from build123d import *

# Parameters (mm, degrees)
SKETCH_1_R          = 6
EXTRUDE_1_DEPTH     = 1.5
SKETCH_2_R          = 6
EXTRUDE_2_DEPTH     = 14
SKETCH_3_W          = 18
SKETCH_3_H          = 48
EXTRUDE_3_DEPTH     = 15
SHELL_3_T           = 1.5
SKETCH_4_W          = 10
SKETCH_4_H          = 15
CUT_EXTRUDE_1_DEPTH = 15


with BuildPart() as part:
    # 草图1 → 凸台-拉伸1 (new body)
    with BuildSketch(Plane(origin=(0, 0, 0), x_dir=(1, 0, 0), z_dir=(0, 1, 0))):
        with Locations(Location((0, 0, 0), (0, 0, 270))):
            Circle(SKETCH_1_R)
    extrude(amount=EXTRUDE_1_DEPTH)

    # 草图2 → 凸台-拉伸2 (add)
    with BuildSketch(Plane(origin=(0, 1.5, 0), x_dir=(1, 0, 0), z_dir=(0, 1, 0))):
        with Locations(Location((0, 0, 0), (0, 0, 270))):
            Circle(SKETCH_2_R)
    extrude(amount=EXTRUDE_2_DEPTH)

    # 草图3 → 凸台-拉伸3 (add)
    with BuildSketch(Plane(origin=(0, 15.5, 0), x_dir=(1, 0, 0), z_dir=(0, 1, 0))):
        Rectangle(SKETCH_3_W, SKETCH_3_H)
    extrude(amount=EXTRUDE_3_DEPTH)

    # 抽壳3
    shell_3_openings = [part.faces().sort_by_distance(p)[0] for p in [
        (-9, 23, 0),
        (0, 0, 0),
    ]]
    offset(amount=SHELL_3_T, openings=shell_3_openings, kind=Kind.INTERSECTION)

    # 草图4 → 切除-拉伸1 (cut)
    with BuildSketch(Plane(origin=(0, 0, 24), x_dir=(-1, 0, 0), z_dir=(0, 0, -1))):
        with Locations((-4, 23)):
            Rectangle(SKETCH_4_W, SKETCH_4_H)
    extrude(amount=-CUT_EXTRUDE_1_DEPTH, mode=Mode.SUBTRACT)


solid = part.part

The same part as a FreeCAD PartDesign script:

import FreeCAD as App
import Part
import Sketcher
from FreeCAD import Vector
Q = App.Units.Quantity


def faces_at(feature, points):
    """Names of the faces that lie closest to the given points."""
    faces = feature.Shape.Faces
    near = lambda p: min(range(len(faces)), key=lambda i: faces[i].distToShape(Part.Vertex(*p))[0])
    return sorted({f"Face{near(p) + 1}" for p in points})

doc = App.newDocument("Part")
body = doc.addObject("PartDesign::Body", "Body")

# Sketch on XZ plane
sketch1 = doc.addObject("Sketcher::SketchObject", "Sketch")
body.addObject(sketch1)
sketch1.AttachmentSupport = (doc.XZ_Plane, [""])
sketch1.MapMode = "FlatFace"
sketch1.addGeometry(Part.Circle(Vector(0, 0, 0), Vector(0, 0, 1), 6), False)
sketch1.addConstraint(Sketcher.Constraint("Coincident", 0, 3, -1, 1))
sketch1.addConstraint(Sketcher.Constraint("Diameter", 0, Q("12 mm")))
pad1 = doc.addObject("PartDesign::Pad", "Pad")
body.addObject(pad1)
pad1.Profile = sketch1
pad1.Length = 1.5
pad1.Reversed = True

# Sketch on XZ plane
sketch2 = doc.addObject("Sketcher::SketchObject", "Sketch001")
body.addObject(sketch2)
sketch2.AttachmentSupport = (doc.XZ_Plane, [""])
sketch2.MapMode = "FlatFace"
sketch2.AttachmentOffset = App.Placement(Vector(0, 0, -1.5), App.Rotation())
sketch2.addGeometry(Part.Circle(Vector(0, 0, 0), Vector(0, 0, 1), 6), False)
sketch2.addConstraint(Sketcher.Constraint("Coincident", 0, 3, -1, 1))
sketch2.addConstraint(Sketcher.Constraint("Diameter", 0, Q("12 mm")))
pad2 = doc.addObject("PartDesign::Pad", "Pad001")
body.addObject(pad2)
pad2.Profile = sketch2
pad2.Length = 14
pad2.Reversed = True

# Sketch on XZ plane
sketch3 = doc.addObject("Sketcher::SketchObject", "Sketch002")
body.addObject(sketch3)
sketch3.AttachmentSupport = (doc.XZ_Plane, [""])
sketch3.MapMode = "FlatFace"
sketch3.AttachmentOffset = App.Placement(Vector(0, 0, -15.5), App.Rotation())
sketch3.addGeometry(Part.LineSegment(Vector(-9, -24, 0), Vector(-9, 24, 0)), False)
sketch3.addGeometry(Part.LineSegment(Vector(-9, 24, 0), Vector(9, 24, 0)), False)
sketch3.addGeometry(Part.LineSegment(Vector(9, 24, 0), Vector(9, -24, 0)), False)
sketch3.addGeometry(Part.LineSegment(Vector(9, -24, 0), Vector(-9, -24, 0)), False)
sketch3.addConstraint(Sketcher.Constraint("Coincident", 0, 2, 1, 1))
sketch3.addConstraint(Sketcher.Constraint("Coincident", 1, 2, 2, 1))
sketch3.addConstraint(Sketcher.Constraint("Coincident", 2, 2, 3, 1))
sketch3.addConstraint(Sketcher.Constraint("Coincident", 3, 2, 0, 1))
sketch3.addConstraint(Sketcher.Constraint("Vertical", 0))
sketch3.addConstraint(Sketcher.Constraint("Horizontal", 1))
sketch3.addConstraint(Sketcher.Constraint("Vertical", 2))
sketch3.addConstraint(Sketcher.Constraint("Horizontal", 3))
sketch3.addConstraint(Sketcher.Constraint("Symmetric", 0, 2, 2, 2, -1, 1))
sketch3.addConstraint(Sketcher.Constraint("DistanceX", 1, 1, 1, 2, Q("18 mm")))
sketch3.addConstraint(Sketcher.Constraint("DistanceY", 0, 1, 0, 2, Q("48 mm")))
pad3 = doc.addObject("PartDesign::Pad", "Pad002")
body.addObject(pad3)
pad3.Profile = sketch3
pad3.Length = 15
pad3.Reversed = True
doc.recompute()

thickness = doc.addObject("PartDesign::Thickness", "Thickness")
body.addObject(thickness)
thickness.Base = (pad3, faces_at(pad3, [(-9, 23, 0), (0, 0, 0)]))
thickness.Value = 1.5
thickness.Reversed = False
thickness.Join = "Intersection"

# Sketch on XY plane
sketch4 = doc.addObject("Sketcher::SketchObject", "Sketch003")
body.addObject(sketch4)
sketch4.AttachmentSupport = (doc.XY_Plane, [""])
sketch4.MapMode = "FlatFace"
sketch4.AttachmentOffset = App.Placement(Vector(0, 0, 24), App.Rotation())
sketch4.addGeometry(Part.LineSegment(Vector(9, 30.5, 0), Vector(9, 15.5, 0)), False)
sketch4.addGeometry(Part.LineSegment(Vector(9, 15.5, 0), Vector(-1, 15.5, 0)), False)
sketch4.addGeometry(Part.LineSegment(Vector(-1, 15.5, 0), Vector(-1, 30.5, 0)), False)
sketch4.addGeometry(Part.LineSegment(Vector(-1, 30.5, 0), Vector(9, 30.5, 0)), False)
sketch4.addConstraint(Sketcher.Constraint("Coincident", 0, 2, 1, 1))
sketch4.addConstraint(Sketcher.Constraint("Coincident", 1, 2, 2, 1))
sketch4.addConstraint(Sketcher.Constraint("Coincident", 2, 2, 3, 1))
sketch4.addConstraint(Sketcher.Constraint("Coincident", 3, 2, 0, 1))
sketch4.addConstraint(Sketcher.Constraint("Vertical", 0))
sketch4.addConstraint(Sketcher.Constraint("Horizontal", 1))
sketch4.addConstraint(Sketcher.Constraint("Vertical", 2))
sketch4.addConstraint(Sketcher.Constraint("Horizontal", 3))
sketch4.addConstraint(Sketcher.Constraint("DistanceX", 1, 2, 1, 1, Q("10 mm")))
sketch4.addConstraint(Sketcher.Constraint("DistanceY", 0, 2, 0, 1, Q("15 mm")))
sketch4.addConstraint(Sketcher.Constraint("DistanceX", -1, 1, 0, 2, Q("9 mm")))
sketch4.addConstraint(Sketcher.Constraint("DistanceY", -1, 1, 0, 2, Q("15.5 mm")))
pocket1 = doc.addObject("PartDesign::Pocket", "Pocket")
body.addObject(pocket1)
pocket1.Profile = sketch4
pocket1.Length = 15
pocket1.Reversed = True

doc.recompute()
